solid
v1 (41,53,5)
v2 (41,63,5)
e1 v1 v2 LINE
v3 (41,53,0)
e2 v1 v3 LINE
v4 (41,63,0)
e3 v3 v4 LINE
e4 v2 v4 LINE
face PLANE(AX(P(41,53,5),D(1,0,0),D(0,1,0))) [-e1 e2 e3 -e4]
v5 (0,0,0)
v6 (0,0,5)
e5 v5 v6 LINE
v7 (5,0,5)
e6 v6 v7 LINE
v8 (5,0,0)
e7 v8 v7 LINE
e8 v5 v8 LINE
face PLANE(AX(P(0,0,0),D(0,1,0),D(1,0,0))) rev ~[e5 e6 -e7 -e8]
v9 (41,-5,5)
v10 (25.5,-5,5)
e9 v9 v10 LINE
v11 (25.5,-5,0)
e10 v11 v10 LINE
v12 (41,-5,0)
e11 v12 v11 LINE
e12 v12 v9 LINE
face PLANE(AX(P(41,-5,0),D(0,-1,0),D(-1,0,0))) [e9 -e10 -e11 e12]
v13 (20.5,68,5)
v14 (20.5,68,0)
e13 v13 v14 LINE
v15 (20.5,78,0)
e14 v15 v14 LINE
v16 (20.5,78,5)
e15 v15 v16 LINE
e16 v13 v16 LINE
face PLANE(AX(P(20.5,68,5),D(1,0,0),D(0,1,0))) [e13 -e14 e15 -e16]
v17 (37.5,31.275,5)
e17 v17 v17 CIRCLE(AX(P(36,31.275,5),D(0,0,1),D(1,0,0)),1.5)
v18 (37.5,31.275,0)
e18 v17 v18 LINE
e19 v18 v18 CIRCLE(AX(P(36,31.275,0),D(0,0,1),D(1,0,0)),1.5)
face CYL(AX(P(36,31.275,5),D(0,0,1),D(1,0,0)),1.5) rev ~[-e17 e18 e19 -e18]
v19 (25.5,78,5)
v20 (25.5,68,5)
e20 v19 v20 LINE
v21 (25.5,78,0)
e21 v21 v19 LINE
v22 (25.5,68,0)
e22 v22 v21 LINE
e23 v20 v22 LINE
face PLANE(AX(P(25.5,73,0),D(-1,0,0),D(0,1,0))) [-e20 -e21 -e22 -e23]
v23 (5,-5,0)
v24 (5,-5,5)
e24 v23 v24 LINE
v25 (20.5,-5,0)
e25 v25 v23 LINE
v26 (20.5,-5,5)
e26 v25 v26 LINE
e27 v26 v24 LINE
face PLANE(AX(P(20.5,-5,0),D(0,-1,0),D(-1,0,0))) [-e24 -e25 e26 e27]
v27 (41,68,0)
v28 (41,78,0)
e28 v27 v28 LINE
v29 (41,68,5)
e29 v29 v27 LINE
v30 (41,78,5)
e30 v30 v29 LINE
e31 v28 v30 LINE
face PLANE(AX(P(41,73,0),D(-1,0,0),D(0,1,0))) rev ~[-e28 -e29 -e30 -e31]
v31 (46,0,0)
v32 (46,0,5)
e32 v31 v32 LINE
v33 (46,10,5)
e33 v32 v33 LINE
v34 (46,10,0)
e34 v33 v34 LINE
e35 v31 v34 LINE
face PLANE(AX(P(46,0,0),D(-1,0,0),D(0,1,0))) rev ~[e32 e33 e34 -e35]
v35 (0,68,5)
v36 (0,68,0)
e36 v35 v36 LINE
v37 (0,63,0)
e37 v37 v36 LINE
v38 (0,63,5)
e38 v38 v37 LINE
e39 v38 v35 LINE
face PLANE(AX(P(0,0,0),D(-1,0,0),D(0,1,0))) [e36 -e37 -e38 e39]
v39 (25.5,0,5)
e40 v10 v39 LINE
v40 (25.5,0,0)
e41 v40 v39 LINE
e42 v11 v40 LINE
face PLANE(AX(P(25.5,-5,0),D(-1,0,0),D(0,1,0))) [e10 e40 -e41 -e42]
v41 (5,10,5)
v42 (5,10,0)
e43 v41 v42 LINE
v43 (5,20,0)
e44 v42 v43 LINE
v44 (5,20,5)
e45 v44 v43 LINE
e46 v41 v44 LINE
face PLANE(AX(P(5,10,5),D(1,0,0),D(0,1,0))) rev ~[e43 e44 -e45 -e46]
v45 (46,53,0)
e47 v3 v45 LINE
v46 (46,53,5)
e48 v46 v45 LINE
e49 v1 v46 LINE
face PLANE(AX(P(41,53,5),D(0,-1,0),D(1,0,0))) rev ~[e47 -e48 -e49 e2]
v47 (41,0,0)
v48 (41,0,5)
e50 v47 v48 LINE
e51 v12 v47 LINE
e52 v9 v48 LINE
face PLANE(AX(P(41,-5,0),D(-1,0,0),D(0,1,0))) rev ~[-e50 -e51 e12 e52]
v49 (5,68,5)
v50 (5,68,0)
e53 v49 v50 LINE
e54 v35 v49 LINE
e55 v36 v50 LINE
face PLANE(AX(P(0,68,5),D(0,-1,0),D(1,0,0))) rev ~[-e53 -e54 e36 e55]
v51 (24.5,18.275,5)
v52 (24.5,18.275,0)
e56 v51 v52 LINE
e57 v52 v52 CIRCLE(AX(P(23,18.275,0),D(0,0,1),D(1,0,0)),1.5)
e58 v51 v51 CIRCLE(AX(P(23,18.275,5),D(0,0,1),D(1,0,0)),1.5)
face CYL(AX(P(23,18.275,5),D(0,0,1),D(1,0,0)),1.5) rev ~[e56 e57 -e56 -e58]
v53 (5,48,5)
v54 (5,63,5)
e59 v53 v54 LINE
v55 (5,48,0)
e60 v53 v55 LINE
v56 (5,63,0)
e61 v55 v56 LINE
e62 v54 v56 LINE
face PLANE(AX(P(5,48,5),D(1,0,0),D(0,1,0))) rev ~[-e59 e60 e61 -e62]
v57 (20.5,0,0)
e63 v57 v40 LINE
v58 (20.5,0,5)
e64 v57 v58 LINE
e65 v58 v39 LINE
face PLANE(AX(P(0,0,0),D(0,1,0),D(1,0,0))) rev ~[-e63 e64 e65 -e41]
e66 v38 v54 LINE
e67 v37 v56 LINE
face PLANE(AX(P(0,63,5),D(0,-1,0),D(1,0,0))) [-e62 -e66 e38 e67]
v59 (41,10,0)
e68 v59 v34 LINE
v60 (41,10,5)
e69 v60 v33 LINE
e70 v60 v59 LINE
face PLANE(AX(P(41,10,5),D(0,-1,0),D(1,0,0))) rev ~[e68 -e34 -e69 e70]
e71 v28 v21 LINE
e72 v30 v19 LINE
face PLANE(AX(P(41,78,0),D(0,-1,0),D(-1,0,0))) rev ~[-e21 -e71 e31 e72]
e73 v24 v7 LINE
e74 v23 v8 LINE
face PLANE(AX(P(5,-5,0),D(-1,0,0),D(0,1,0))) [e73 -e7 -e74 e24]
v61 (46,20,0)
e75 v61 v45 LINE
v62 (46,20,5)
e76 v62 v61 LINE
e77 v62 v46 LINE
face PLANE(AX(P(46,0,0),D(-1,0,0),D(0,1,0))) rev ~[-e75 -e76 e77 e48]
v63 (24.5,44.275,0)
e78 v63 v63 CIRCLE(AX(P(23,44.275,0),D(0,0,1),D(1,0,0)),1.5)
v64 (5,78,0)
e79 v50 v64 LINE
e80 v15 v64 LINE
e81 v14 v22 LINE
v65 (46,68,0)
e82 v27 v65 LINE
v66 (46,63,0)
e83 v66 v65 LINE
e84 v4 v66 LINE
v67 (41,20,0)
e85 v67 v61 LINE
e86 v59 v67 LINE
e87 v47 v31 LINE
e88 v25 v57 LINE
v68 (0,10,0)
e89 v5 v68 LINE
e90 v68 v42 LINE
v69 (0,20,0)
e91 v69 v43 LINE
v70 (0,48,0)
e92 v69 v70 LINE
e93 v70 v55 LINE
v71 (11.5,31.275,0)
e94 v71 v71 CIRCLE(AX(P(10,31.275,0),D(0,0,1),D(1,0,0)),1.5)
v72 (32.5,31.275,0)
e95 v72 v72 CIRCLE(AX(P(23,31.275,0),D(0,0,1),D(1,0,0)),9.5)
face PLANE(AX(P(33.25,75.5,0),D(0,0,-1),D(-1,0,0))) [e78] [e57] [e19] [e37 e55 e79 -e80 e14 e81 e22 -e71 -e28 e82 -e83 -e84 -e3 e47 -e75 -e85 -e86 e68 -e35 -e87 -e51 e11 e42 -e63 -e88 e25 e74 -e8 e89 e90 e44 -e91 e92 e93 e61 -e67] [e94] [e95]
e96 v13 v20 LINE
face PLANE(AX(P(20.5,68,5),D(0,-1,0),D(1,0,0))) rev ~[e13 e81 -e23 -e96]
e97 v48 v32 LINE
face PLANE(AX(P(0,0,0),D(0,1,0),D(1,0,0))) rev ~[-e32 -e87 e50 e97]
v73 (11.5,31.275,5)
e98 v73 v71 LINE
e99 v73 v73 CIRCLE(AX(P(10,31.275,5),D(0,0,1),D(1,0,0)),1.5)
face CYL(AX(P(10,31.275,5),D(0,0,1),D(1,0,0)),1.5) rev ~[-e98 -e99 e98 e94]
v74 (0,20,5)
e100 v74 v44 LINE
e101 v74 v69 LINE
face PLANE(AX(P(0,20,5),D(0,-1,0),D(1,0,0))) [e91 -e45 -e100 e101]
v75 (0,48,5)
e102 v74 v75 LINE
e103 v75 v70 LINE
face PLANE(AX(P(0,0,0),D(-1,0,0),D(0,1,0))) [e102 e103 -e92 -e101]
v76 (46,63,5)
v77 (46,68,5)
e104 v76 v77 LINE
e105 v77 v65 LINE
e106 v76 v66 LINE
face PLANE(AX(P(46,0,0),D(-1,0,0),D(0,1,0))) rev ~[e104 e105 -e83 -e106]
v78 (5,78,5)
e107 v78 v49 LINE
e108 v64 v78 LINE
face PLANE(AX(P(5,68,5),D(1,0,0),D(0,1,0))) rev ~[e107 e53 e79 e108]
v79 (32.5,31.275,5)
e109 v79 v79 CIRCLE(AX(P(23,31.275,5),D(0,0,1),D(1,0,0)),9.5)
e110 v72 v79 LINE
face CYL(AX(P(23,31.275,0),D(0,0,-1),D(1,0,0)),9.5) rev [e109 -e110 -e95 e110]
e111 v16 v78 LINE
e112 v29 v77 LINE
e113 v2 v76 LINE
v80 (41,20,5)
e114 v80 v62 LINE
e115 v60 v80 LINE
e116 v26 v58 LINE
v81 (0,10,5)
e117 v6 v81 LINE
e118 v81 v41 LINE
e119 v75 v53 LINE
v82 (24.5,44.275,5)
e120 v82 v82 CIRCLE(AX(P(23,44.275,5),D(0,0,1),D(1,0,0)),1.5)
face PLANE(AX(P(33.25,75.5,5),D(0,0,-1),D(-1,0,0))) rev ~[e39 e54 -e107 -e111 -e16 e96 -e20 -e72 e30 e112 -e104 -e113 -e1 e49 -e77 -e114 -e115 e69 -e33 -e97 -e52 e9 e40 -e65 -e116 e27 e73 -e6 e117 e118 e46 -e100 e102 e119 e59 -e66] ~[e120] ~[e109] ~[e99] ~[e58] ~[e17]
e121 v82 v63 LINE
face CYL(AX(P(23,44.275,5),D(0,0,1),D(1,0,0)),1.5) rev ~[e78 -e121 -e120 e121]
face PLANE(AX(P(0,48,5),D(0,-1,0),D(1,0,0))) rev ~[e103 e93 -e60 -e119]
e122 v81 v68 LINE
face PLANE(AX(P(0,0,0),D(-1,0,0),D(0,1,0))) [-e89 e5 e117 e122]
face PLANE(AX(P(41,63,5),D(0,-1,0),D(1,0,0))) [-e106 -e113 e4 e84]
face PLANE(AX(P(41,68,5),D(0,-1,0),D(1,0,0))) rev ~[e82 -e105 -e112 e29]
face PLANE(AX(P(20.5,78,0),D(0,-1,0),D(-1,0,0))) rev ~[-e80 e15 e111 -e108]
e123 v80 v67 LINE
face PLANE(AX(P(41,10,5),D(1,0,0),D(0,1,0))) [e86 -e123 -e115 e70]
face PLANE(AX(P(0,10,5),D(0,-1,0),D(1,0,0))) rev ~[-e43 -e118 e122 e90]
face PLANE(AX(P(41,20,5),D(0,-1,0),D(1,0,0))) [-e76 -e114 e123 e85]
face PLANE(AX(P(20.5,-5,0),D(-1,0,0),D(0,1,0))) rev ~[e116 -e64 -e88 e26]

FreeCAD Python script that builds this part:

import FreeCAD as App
import Part
import Sketcher
Q = App.Units.Quantity


def add_polygon(sketch, points):
    """Adds a closed chain of lines whose ends are joined by coincident constraints."""
    first, n = sketch.GeometryCount, len(points)
    for a, b in zip(points, points[1:] + points[:1]):
        sketch.addGeometry(Part.LineSegment(App.Vector(*a, 0), App.Vector(*b, 0)), False)
    for i in range(n):
        sketch.addConstraint(Sketcher.Constraint("Coincident", first + i, 2, first + (i + 1) % n, 1))

doc = App.newDocument("Part")
body = doc.addObject("PartDesign::Body", "Body")

sketch1 = doc.addObject("Sketcher::SketchObject", "Sketch")
body.addObject(sketch1)
sketch1.AttachmentSupport = (doc.XY_Plane, [""])
sketch1.MapMode = "FlatFace"
add_polygon(sketch1, [(0, 73), (0, 0), (46, 0), (46, 73)])
sketch1.addGeometry(Part.Circle(App.Vector(23, 31, 0), App.Vector(0, 0, 1), 10), False)
sketch1.addConstraint([
    Sketcher.Constraint("Vertical", 0),
    Sketcher.Constraint("Horizontal", 1),
    Sketcher.Constraint("Vertical", 2),
    Sketcher.Constraint("Horizontal", 3),
    Sketcher.Constraint("Coincident", 0, 2, -1, 1),
    Sketcher.Constraint("Diameter", 4, Q("19 mm")),
    Sketcher.Constraint("DistanceX", 1, 1, 1, 2, Q("46 mm")),
    Sketcher.Constraint("DistanceY", 0, 2, 0, 1, Q("73 mm")),
    Sketcher.Constraint("DistanceX", -1, 1, 4, 3, Q("23 mm")),
    Sketcher.Constraint("DistanceY", -1, 1, 4, 3, Q("31.275 mm")),
])
pad1 = doc.addObject("PartDesign::Pad", "Pad")
body.addObject(pad1)
pad1.Profile = sketch1
pad1.Length = 5

sketch2 = doc.addObject("Sketcher::SketchObject", "Sketch001")
body.addObject(sketch2)
sketch2.AttachmentSupport = (doc.XY_Plane, [""])
sketch2.MapMode = "FlatFace"
sketch2.AttachmentOffset = App.Placement(App.Vector(0, 0, 5), App.Rotation())
sketch2.addGeometry(Part.Circle(App.Vector(23, 44.3, 0), App.Vector(0, 0, 1), 1.5), False)
sketch2.addGeometry(Part.Circle(App.Vector(36, 31.3, 0), App.Vector(0, 0, 1), 1.5), False)
sketch2.addGeometry(Part.Circle(App.Vector(23, 18.3, 0), App.Vector(0, 0, 1), 1.5), False)
sketch2.addGeometry(Part.Circle(App.Vector(10, 31.3, 0), App.Vector(0, 0, 1), 1.5), False)
add_polygon(sketch2, [(41, 63), (41, 53), (46, 53), (46, 63)])
add_polygon(sketch2, [(0, 73), (0, 68), (5, 68), (5, 73)])
add_polygon(sketch2, [(41, 20), (41, 10), (46, 10), (46, 20)])
add_polygon(sketch2, [(0, 20), (0, 10), (5, 10), (5, 20)])
add_polygon(sketch2, [(0, 63), (0, 48), (5, 48), (5, 63)])
add_polygon(sketch2, [(41, 73), (41, 68), (46, 68), (46, 73)])
add_polygon(sketch2, [(20.5, 73), (20.5, 68), (25.5, 68), (25.5, 73)])
sketch2.addConstraint([
    Sketcher.Constraint("Vertical", 4),
    Sketcher.Constraint("Horizontal", 5),
    Sketcher.Constraint("Vertical", 6),
    Sketcher.Constraint("Horizontal", 7),
    Sketcher.Constraint("Vertical", 8),
    Sketcher.Constraint("Horizontal", 9),
    Sketcher.Constraint("Vertical", 10),
    Sketcher.Constraint("Horizontal", 11),
    Sketcher.Constraint("Vertical", 12),
    Sketcher.Constraint("Horizontal", 13),
    Sketcher.Constraint("Vertical", 14),
    Sketcher.Constraint("Horizontal", 15),
    Sketcher.Constraint("Vertical", 16),
    Sketcher.Constraint("Horizontal", 17),
    Sketcher.Constraint("Vertical", 18),
    Sketcher.Constraint("Horizontal", 19),
    Sketcher.Constraint("Vertical", 20),
    Sketcher.Constraint("Horizontal", 21),
    Sketcher.Constraint("Vertical", 22),
    Sketcher.Constraint("Horizontal", 23),
    Sketcher.Constraint("Vertical", 24),
    Sketcher.Constraint("Horizontal", 25),
    Sketcher.Constraint("Vertical", 26),
    Sketcher.Constraint("Horizontal", 27),
    Sketcher.Constraint("Vertical", 28),
    Sketcher.Constraint("Horizontal", 29),
    Sketcher.Constraint("Vertical", 30),
    Sketcher.Constraint("Horizontal", 31),
    Sketcher.Constraint("Equal", 0, 1),
    Sketcher.Constraint("Equal", 1, 2),
    Sketcher.Constraint("Equal", 2, 3),
    Sketcher.Constraint("PointOnObject", 8, 2, -2),
    Sketcher.Constraint("PointOnObject", 16, 2, -2),
    Sketcher.Constraint("PointOnObject", 20, 2, -2),
    Sketcher.Constraint("Horizontal", 1, 3, 3, 3),
    Sketcher.Constraint("Horizontal", 13, 2, 16, 2),
    Sketcher.Constraint("Horizontal", 15, 2, 18, 2),
    Sketcher.Constraint("Horizontal", 7, 2, 22, 2),
    Sketcher.Constraint("Horizontal", 9, 2, 24, 2),
    Sketcher.Constraint("Horizontal", 11, 2, 26, 2),
    Sketcher.Constraint("Horizontal", 25, 2, 28, 2),
    Sketcher.Constraint("Horizontal", 27, 2, 30, 2),
    Sketcher.Constraint("Vertical", 0, 3, 2, 3),
    Sketcher.Constraint("Vertical", 7, 2, 12, 2),
    Sketcher.Constraint("Vertical", 6, 2, 13, 2),
    Sketcher.Constraint("Vertical", 10, 2, 17, 2),
    Sketcher.Constraint("Vertical", 18, 2, 21, 2),
    Sketcher.Constraint("Vertical", 15, 2, 24, 2),
    Sketcher.Constraint("Vertical", 14, 2, 25, 2),
    Sketcher.Constraint("Equal", 7, 9),
    Sketcher.Constraint("Equal", 27, 29),
    Sketcher.Constraint("Equal", 31, 8),
    Sketcher.Constraint("Equal", 6, 12),
    Sketcher.Constraint("Diameter", 0, Q("3 mm")),
    Sketcher.Constraint("DistanceX", 5, 1, 5, 2, Q("5 mm")),
    Sketcher.Constraint("DistanceY", 4, 2, 4, 1, Q("10 mm")),
    Sketcher.Constraint("DistanceY", 20, 2, 20, 1, Q("15 mm")),
    Sketcher.Constraint("DistanceX", -1, 1, 0, 3, Q("23 mm")),
    Sketcher.Constraint("DistanceX", -1, 1, 1, 3, Q("36 mm")),
    Sketcher.Constraint("DistanceX", -1, 1, 3, 3, Q("10 mm")),
    Sketcher.Constraint("DistanceX", -1, 1, 4, 2, Q("41 mm")),
    Sketcher.Constraint("DistanceY", -1, 1, 4, 2, Q("53 mm")),
    Sketcher.Constraint("DistanceY", -1, 1, 8, 2, Q("68 mm")),
    Sketcher.Constraint("DistanceY", -1, 1, 12, 2, Q("10 mm")),
    Sketcher.Constraint("DistanceY", 1, 3, 0, 3, Q("13 mm")),
    Sketcher.Constraint("DistanceY", 2, 3, 1, 3, Q("13 mm")),
    Sketcher.Constraint("DistanceX", -1, 1, 28, 2, Q("20.5 mm")),
    Sketcher.Constraint("DistanceY", -1, 1, 0, 3, Q("44.275 mm")),
])
pocket1 = doc.addObject("PartDesign::Pocket", "Pocket")
body.addObject(pocket1)
pocket1.Profile = sketch2
pocket1.Length = 5

sketch3 = doc.addObject("Sketcher::SketchObject", "Sketch002")
body.addObject(sketch3)
sketch3.AttachmentSupport = (doc.XY_Plane, [""])
sketch3.MapMode = "FlatFace"
add_polygon(sketch3, [(41, 78), (41, 73), (26, 73), (26, 78)])
add_polygon(sketch3, [(20, 78), (20, 73), (5, 73), (5, 78)])
add_polygon(sketch3, [(41, 0), (41, -5), (26, -5), (26, 0)])
add_polygon(sketch3, [(20, 0), (20, -5), (5, -5), (5, 0)])
sketch3.addConstraint([
    Sketcher.Constraint("Vertical", 0),
    Sketcher.Constraint("Horizontal", 1),
    Sketcher.Constraint("Vertical", 2),
    Sketcher.Constraint("Horizontal", 3),
    Sketcher.Constraint("Vertical", 4),
    Sketcher.Constraint("Horizontal", 5),
    Sketcher.Constraint("Vertical", 6),
    Sketcher.Constraint("Horizontal", 7),
    Sketcher.Constraint("Vertical", 8),
    Sketcher.Constraint("Horizontal", 9),
    Sketcher.Constraint("Vertical", 10),
    Sketcher.Constraint("Horizontal", 11),
    Sketcher.Constraint("Vertical", 12),
    Sketcher.Constraint("Horizontal", 13),
    Sketcher.Constraint("Vertical", 14),
    Sketcher.Constraint("Horizontal", 15),
    Sketcher.Constraint("PointOnObject", 10, 2, -1),
    Sketcher.Constraint("PointOnObject", 14, 2, -1),
    Sketcher.Constraint("Horizontal", 1, 2, 4, 2),
    Sketcher.Constraint("Horizontal", 3, 2, 6, 2),
    Sketcher.Constraint("Horizontal", 9, 2, 12, 2),
    Sketcher.Constraint("Vertical", 3, 2, 8, 2),
    Sketcher.Constraint("Vertical", 2, 2, 9, 2),
    Sketcher.Constraint("Vertical", 7, 2, 12, 2),
    Sketcher.Constraint("Vertical", 6, 2, 13, 2),
    Sketcher.Constraint("Equal", 3, 5),
    Sketcher.Constraint("Equal", 6, 8),
    Sketcher.Constraint("DistanceY", 0, 2, 0, 1, Q("5 mm")),
    Sketcher.Constraint("DistanceX", 1, 2, 1, 1, Q("15.5 mm")),
    Sketcher.Constraint("DistanceX", -1, 1, 0, 2, Q("41 mm")),
    Sketcher.Constraint("DistanceY", -1, 1, 0, 2, Q("73 mm")),
    Sketcher.Constraint("DistanceX", -1, 1, 5, 2, Q("5 mm")),
])
pad2 = doc.addObject("PartDesign::Pad", "Pad001")
body.addObject(pad2)
pad2.Profile = sketch3
pad2.Length = 5

doc.recompute()
